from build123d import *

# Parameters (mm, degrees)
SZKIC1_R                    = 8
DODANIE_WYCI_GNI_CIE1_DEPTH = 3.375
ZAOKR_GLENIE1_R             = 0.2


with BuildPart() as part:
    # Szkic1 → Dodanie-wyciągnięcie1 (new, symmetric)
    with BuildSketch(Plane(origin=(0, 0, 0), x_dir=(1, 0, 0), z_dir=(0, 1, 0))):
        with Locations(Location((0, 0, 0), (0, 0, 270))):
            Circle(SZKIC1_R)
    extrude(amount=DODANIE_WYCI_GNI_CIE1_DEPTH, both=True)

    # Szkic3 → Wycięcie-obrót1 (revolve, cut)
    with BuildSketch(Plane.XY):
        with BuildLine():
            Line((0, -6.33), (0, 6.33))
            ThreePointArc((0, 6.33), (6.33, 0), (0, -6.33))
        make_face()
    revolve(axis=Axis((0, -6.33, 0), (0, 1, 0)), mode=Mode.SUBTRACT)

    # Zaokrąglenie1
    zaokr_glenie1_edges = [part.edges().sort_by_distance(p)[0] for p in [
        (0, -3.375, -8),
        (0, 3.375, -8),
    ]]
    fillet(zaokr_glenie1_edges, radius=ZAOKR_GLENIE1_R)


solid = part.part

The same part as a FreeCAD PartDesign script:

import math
import FreeCAD as App
import Part
import Sketcher
Q = App.Units.Quantity


def edges_at(feature, points):
    """Names of the edges that pass closest to the given points."""
    edges = feature.Shape.Edges
    near = lambda p: min(range(len(edges)), key=lambda i: edges[i].distToShape(Part.Vertex(*p))[0])
    return sorted({f"Edge{near(p) + 1}" for p in points})

doc = App.newDocument("Part")
body = doc.addObject("PartDesign::Body", "Body")

# Sketch on XZ plane
sketch1 = doc.addObject("Sketcher::SketchObject", "Sketch")
body.addObject(sketch1)
sketch1.AttachmentSupport = (doc.XZ_Plane, [""])
sketch1.MapMode = "FlatFace"
sketch1.addGeometry(Part.Circle(App.Vector(0, 0, 0), App.Vector(0, 0, 1), 8), False)
sketch1.addConstraint(Sketcher.Constraint("Coincident", 0, 3, -1, 1))
sketch1.addConstraint(Sketcher.Constraint("Diameter", 0, Q("16 mm")))
pad1 = doc.addObject("PartDesign::Pad", "Pad")
body.addObject(pad1)
pad1.Profile = sketch1
pad1.Length = 6.75
pad1.Midplane = True

# Sketch on XY plane
sketch2 = doc.addObject("Sketcher::SketchObject", "Sketch001")
body.addObject(sketch2)
sketch2.AttachmentSupport = (doc.XY_Plane, [""])
sketch2.MapMode = "FlatFace"
sketch2.addGeometry(Part.LineSegment(App.Vector(0, 6.33, 0), App.Vector(0, -6.33, 0)), False)
sketch2.addGeometry(Part.ArcOfCircle(Part.Circle(App.Vector(0, 0, 0), App.Vector(0, 0, 1), 6.33), math.radians(-90), math.radians(90)), False)
sketch2.addConstraint(Sketcher.Constraint("Coincident", 0, 1, 1, 2))
sketch2.addConstraint(Sketcher.Constraint("Coincident", 1, 1, 0, 2))
sketch2.addConstraint(Sketcher.Constraint("Vertical", 0))
sketch2.addConstraint(Sketcher.Constraint("Coincident", 1, 3, -1, 1))
sketch2.addConstraint(Sketcher.Constraint("PointOnObject", 0, 1, -2))
sketch2.addConstraint(Sketcher.Constraint("Radius", 1, Q("6.33 mm")))
groove = doc.addObject("PartDesign::Groove", "Groove")
body.addObject(groove)
groove.Profile = sketch2
groove.ReferenceAxis = (sketch2, ["V_Axis"])
groove.Angle = 360
doc.recompute()

fillet = doc.addObject("PartDesign::Fillet", "Fillet")
body.addObject(fillet)
fillet.Base = (groove, edges_at(groove, [(0, -3.375, -8), (0, 3.375, -8)]))
fillet.Radius = 0.2

doc.recompute()
